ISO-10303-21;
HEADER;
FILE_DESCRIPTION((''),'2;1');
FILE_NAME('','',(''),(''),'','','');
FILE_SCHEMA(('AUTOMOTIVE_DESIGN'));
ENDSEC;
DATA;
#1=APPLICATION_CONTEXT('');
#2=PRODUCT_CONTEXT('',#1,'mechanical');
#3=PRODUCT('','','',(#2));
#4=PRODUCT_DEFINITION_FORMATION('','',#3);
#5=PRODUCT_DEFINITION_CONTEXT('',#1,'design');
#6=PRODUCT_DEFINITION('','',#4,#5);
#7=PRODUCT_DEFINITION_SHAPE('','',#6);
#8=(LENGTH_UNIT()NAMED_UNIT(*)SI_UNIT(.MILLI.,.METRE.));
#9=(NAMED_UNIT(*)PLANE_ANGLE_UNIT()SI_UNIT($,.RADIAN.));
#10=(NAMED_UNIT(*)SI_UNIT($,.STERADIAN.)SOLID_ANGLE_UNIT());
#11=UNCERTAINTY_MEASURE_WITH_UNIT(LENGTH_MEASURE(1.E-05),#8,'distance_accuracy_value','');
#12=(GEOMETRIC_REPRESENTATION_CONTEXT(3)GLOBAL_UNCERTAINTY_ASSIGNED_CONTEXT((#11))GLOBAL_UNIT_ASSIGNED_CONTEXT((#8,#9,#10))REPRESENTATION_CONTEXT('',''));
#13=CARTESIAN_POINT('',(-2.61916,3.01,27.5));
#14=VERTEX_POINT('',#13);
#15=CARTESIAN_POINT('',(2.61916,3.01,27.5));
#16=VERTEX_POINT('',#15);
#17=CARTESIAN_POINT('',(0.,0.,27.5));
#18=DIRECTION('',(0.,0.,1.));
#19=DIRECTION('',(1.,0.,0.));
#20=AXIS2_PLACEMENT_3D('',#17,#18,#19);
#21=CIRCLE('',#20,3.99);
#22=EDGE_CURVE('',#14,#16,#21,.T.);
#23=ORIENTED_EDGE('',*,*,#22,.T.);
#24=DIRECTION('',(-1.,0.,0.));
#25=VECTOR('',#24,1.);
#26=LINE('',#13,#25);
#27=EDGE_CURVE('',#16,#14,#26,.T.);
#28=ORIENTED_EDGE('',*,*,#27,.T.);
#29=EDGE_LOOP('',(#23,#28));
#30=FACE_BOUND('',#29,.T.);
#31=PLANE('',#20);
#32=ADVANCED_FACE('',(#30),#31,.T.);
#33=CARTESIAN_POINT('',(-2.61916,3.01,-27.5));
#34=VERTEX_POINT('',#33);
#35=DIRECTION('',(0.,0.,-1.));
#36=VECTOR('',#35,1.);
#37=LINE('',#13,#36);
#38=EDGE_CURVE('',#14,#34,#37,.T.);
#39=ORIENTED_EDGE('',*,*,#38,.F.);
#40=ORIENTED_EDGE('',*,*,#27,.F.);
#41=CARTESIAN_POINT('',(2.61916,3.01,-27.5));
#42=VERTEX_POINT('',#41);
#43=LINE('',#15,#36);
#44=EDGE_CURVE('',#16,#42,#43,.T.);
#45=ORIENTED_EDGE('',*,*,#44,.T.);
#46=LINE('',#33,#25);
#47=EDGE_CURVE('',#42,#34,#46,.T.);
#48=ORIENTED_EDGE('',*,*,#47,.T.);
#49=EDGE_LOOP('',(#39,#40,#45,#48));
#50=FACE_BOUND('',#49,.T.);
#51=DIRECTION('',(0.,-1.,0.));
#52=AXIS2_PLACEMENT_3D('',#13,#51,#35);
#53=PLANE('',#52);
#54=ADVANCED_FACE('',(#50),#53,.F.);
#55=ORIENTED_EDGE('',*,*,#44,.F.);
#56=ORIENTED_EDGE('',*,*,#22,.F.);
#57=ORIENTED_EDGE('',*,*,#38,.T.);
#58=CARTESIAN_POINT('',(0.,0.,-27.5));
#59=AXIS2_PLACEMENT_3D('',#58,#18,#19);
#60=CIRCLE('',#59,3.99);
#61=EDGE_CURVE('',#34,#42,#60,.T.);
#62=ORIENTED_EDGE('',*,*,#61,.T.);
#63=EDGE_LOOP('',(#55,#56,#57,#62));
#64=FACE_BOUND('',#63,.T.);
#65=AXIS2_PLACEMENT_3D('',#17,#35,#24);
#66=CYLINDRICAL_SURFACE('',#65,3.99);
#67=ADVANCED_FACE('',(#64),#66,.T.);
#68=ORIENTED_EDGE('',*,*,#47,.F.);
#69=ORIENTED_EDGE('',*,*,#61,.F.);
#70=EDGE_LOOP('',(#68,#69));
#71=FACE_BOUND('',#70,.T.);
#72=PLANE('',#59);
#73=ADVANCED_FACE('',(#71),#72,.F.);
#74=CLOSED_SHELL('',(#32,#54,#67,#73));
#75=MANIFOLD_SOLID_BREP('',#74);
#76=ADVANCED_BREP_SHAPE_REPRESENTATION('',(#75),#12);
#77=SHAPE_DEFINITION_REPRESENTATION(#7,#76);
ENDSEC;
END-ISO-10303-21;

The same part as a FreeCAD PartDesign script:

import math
import FreeCAD as App
import Part
import Sketcher
from FreeCAD import Vector
Q = App.Units.Quantity

doc = App.newDocument("Part")
params = doc.addObject("Spreadsheet::Sheet", "Params")
for row, (alias, value) in enumerate([
    ("sketch1_radius", "3.99 mm"),
    ("pad1_length", "55 mm"),
], start=1):
    params.set(f"A{row}", alias)
    params.set(f"B{row}", "=" + value)
    params.setAlias(f"B{row}", alias)

body = doc.addObject("PartDesign::Body", "Body")

# Sketch on XY plane
sketch1 = body.newObject("Sketcher::SketchObject", "Sketch")
sketch1.AttachmentSupport = (doc.getObject("XY_Plane"), [""])
sketch1.MapMode = "FlatFace"
sketch1.addGeometry([
    Part.LineSegment(Vector(2.61916, 3.01, 0), Vector(-2.61916, 3.01, 0)),
    Part.ArcOfCircle(Part.Circle(Vector(0, 0, 0), Vector(0, 0, 1), 3.99), math.radians(131.028254), math.radians(408.971746)),
], False)
sketch1.addConstraint([
    Sketcher.Constraint("Coincident", 0, 1, 1, 2),
    Sketcher.Constraint("Coincident", 1, 1, 0, 2),
    Sketcher.Constraint("Horizontal", 0),
    Sketcher.Constraint("Coincident", 1, 3, -1, 1),
    Sketcher.Constraint("Radius", 1, Q("3.99 mm")),
    Sketcher.Constraint("DistanceY", -1, 1, 0, 1, Q("3.01 mm")),
])
sketch1.setExpression("Constraints[4]", "Params.sketch1_radius")
pad1 = body.newObject("PartDesign::Pad", "Pad")
pad1.Profile = sketch1
pad1.setExpression("Length", "Params.pad1_length")
pad1.Midplane = True

doc.recompute()
